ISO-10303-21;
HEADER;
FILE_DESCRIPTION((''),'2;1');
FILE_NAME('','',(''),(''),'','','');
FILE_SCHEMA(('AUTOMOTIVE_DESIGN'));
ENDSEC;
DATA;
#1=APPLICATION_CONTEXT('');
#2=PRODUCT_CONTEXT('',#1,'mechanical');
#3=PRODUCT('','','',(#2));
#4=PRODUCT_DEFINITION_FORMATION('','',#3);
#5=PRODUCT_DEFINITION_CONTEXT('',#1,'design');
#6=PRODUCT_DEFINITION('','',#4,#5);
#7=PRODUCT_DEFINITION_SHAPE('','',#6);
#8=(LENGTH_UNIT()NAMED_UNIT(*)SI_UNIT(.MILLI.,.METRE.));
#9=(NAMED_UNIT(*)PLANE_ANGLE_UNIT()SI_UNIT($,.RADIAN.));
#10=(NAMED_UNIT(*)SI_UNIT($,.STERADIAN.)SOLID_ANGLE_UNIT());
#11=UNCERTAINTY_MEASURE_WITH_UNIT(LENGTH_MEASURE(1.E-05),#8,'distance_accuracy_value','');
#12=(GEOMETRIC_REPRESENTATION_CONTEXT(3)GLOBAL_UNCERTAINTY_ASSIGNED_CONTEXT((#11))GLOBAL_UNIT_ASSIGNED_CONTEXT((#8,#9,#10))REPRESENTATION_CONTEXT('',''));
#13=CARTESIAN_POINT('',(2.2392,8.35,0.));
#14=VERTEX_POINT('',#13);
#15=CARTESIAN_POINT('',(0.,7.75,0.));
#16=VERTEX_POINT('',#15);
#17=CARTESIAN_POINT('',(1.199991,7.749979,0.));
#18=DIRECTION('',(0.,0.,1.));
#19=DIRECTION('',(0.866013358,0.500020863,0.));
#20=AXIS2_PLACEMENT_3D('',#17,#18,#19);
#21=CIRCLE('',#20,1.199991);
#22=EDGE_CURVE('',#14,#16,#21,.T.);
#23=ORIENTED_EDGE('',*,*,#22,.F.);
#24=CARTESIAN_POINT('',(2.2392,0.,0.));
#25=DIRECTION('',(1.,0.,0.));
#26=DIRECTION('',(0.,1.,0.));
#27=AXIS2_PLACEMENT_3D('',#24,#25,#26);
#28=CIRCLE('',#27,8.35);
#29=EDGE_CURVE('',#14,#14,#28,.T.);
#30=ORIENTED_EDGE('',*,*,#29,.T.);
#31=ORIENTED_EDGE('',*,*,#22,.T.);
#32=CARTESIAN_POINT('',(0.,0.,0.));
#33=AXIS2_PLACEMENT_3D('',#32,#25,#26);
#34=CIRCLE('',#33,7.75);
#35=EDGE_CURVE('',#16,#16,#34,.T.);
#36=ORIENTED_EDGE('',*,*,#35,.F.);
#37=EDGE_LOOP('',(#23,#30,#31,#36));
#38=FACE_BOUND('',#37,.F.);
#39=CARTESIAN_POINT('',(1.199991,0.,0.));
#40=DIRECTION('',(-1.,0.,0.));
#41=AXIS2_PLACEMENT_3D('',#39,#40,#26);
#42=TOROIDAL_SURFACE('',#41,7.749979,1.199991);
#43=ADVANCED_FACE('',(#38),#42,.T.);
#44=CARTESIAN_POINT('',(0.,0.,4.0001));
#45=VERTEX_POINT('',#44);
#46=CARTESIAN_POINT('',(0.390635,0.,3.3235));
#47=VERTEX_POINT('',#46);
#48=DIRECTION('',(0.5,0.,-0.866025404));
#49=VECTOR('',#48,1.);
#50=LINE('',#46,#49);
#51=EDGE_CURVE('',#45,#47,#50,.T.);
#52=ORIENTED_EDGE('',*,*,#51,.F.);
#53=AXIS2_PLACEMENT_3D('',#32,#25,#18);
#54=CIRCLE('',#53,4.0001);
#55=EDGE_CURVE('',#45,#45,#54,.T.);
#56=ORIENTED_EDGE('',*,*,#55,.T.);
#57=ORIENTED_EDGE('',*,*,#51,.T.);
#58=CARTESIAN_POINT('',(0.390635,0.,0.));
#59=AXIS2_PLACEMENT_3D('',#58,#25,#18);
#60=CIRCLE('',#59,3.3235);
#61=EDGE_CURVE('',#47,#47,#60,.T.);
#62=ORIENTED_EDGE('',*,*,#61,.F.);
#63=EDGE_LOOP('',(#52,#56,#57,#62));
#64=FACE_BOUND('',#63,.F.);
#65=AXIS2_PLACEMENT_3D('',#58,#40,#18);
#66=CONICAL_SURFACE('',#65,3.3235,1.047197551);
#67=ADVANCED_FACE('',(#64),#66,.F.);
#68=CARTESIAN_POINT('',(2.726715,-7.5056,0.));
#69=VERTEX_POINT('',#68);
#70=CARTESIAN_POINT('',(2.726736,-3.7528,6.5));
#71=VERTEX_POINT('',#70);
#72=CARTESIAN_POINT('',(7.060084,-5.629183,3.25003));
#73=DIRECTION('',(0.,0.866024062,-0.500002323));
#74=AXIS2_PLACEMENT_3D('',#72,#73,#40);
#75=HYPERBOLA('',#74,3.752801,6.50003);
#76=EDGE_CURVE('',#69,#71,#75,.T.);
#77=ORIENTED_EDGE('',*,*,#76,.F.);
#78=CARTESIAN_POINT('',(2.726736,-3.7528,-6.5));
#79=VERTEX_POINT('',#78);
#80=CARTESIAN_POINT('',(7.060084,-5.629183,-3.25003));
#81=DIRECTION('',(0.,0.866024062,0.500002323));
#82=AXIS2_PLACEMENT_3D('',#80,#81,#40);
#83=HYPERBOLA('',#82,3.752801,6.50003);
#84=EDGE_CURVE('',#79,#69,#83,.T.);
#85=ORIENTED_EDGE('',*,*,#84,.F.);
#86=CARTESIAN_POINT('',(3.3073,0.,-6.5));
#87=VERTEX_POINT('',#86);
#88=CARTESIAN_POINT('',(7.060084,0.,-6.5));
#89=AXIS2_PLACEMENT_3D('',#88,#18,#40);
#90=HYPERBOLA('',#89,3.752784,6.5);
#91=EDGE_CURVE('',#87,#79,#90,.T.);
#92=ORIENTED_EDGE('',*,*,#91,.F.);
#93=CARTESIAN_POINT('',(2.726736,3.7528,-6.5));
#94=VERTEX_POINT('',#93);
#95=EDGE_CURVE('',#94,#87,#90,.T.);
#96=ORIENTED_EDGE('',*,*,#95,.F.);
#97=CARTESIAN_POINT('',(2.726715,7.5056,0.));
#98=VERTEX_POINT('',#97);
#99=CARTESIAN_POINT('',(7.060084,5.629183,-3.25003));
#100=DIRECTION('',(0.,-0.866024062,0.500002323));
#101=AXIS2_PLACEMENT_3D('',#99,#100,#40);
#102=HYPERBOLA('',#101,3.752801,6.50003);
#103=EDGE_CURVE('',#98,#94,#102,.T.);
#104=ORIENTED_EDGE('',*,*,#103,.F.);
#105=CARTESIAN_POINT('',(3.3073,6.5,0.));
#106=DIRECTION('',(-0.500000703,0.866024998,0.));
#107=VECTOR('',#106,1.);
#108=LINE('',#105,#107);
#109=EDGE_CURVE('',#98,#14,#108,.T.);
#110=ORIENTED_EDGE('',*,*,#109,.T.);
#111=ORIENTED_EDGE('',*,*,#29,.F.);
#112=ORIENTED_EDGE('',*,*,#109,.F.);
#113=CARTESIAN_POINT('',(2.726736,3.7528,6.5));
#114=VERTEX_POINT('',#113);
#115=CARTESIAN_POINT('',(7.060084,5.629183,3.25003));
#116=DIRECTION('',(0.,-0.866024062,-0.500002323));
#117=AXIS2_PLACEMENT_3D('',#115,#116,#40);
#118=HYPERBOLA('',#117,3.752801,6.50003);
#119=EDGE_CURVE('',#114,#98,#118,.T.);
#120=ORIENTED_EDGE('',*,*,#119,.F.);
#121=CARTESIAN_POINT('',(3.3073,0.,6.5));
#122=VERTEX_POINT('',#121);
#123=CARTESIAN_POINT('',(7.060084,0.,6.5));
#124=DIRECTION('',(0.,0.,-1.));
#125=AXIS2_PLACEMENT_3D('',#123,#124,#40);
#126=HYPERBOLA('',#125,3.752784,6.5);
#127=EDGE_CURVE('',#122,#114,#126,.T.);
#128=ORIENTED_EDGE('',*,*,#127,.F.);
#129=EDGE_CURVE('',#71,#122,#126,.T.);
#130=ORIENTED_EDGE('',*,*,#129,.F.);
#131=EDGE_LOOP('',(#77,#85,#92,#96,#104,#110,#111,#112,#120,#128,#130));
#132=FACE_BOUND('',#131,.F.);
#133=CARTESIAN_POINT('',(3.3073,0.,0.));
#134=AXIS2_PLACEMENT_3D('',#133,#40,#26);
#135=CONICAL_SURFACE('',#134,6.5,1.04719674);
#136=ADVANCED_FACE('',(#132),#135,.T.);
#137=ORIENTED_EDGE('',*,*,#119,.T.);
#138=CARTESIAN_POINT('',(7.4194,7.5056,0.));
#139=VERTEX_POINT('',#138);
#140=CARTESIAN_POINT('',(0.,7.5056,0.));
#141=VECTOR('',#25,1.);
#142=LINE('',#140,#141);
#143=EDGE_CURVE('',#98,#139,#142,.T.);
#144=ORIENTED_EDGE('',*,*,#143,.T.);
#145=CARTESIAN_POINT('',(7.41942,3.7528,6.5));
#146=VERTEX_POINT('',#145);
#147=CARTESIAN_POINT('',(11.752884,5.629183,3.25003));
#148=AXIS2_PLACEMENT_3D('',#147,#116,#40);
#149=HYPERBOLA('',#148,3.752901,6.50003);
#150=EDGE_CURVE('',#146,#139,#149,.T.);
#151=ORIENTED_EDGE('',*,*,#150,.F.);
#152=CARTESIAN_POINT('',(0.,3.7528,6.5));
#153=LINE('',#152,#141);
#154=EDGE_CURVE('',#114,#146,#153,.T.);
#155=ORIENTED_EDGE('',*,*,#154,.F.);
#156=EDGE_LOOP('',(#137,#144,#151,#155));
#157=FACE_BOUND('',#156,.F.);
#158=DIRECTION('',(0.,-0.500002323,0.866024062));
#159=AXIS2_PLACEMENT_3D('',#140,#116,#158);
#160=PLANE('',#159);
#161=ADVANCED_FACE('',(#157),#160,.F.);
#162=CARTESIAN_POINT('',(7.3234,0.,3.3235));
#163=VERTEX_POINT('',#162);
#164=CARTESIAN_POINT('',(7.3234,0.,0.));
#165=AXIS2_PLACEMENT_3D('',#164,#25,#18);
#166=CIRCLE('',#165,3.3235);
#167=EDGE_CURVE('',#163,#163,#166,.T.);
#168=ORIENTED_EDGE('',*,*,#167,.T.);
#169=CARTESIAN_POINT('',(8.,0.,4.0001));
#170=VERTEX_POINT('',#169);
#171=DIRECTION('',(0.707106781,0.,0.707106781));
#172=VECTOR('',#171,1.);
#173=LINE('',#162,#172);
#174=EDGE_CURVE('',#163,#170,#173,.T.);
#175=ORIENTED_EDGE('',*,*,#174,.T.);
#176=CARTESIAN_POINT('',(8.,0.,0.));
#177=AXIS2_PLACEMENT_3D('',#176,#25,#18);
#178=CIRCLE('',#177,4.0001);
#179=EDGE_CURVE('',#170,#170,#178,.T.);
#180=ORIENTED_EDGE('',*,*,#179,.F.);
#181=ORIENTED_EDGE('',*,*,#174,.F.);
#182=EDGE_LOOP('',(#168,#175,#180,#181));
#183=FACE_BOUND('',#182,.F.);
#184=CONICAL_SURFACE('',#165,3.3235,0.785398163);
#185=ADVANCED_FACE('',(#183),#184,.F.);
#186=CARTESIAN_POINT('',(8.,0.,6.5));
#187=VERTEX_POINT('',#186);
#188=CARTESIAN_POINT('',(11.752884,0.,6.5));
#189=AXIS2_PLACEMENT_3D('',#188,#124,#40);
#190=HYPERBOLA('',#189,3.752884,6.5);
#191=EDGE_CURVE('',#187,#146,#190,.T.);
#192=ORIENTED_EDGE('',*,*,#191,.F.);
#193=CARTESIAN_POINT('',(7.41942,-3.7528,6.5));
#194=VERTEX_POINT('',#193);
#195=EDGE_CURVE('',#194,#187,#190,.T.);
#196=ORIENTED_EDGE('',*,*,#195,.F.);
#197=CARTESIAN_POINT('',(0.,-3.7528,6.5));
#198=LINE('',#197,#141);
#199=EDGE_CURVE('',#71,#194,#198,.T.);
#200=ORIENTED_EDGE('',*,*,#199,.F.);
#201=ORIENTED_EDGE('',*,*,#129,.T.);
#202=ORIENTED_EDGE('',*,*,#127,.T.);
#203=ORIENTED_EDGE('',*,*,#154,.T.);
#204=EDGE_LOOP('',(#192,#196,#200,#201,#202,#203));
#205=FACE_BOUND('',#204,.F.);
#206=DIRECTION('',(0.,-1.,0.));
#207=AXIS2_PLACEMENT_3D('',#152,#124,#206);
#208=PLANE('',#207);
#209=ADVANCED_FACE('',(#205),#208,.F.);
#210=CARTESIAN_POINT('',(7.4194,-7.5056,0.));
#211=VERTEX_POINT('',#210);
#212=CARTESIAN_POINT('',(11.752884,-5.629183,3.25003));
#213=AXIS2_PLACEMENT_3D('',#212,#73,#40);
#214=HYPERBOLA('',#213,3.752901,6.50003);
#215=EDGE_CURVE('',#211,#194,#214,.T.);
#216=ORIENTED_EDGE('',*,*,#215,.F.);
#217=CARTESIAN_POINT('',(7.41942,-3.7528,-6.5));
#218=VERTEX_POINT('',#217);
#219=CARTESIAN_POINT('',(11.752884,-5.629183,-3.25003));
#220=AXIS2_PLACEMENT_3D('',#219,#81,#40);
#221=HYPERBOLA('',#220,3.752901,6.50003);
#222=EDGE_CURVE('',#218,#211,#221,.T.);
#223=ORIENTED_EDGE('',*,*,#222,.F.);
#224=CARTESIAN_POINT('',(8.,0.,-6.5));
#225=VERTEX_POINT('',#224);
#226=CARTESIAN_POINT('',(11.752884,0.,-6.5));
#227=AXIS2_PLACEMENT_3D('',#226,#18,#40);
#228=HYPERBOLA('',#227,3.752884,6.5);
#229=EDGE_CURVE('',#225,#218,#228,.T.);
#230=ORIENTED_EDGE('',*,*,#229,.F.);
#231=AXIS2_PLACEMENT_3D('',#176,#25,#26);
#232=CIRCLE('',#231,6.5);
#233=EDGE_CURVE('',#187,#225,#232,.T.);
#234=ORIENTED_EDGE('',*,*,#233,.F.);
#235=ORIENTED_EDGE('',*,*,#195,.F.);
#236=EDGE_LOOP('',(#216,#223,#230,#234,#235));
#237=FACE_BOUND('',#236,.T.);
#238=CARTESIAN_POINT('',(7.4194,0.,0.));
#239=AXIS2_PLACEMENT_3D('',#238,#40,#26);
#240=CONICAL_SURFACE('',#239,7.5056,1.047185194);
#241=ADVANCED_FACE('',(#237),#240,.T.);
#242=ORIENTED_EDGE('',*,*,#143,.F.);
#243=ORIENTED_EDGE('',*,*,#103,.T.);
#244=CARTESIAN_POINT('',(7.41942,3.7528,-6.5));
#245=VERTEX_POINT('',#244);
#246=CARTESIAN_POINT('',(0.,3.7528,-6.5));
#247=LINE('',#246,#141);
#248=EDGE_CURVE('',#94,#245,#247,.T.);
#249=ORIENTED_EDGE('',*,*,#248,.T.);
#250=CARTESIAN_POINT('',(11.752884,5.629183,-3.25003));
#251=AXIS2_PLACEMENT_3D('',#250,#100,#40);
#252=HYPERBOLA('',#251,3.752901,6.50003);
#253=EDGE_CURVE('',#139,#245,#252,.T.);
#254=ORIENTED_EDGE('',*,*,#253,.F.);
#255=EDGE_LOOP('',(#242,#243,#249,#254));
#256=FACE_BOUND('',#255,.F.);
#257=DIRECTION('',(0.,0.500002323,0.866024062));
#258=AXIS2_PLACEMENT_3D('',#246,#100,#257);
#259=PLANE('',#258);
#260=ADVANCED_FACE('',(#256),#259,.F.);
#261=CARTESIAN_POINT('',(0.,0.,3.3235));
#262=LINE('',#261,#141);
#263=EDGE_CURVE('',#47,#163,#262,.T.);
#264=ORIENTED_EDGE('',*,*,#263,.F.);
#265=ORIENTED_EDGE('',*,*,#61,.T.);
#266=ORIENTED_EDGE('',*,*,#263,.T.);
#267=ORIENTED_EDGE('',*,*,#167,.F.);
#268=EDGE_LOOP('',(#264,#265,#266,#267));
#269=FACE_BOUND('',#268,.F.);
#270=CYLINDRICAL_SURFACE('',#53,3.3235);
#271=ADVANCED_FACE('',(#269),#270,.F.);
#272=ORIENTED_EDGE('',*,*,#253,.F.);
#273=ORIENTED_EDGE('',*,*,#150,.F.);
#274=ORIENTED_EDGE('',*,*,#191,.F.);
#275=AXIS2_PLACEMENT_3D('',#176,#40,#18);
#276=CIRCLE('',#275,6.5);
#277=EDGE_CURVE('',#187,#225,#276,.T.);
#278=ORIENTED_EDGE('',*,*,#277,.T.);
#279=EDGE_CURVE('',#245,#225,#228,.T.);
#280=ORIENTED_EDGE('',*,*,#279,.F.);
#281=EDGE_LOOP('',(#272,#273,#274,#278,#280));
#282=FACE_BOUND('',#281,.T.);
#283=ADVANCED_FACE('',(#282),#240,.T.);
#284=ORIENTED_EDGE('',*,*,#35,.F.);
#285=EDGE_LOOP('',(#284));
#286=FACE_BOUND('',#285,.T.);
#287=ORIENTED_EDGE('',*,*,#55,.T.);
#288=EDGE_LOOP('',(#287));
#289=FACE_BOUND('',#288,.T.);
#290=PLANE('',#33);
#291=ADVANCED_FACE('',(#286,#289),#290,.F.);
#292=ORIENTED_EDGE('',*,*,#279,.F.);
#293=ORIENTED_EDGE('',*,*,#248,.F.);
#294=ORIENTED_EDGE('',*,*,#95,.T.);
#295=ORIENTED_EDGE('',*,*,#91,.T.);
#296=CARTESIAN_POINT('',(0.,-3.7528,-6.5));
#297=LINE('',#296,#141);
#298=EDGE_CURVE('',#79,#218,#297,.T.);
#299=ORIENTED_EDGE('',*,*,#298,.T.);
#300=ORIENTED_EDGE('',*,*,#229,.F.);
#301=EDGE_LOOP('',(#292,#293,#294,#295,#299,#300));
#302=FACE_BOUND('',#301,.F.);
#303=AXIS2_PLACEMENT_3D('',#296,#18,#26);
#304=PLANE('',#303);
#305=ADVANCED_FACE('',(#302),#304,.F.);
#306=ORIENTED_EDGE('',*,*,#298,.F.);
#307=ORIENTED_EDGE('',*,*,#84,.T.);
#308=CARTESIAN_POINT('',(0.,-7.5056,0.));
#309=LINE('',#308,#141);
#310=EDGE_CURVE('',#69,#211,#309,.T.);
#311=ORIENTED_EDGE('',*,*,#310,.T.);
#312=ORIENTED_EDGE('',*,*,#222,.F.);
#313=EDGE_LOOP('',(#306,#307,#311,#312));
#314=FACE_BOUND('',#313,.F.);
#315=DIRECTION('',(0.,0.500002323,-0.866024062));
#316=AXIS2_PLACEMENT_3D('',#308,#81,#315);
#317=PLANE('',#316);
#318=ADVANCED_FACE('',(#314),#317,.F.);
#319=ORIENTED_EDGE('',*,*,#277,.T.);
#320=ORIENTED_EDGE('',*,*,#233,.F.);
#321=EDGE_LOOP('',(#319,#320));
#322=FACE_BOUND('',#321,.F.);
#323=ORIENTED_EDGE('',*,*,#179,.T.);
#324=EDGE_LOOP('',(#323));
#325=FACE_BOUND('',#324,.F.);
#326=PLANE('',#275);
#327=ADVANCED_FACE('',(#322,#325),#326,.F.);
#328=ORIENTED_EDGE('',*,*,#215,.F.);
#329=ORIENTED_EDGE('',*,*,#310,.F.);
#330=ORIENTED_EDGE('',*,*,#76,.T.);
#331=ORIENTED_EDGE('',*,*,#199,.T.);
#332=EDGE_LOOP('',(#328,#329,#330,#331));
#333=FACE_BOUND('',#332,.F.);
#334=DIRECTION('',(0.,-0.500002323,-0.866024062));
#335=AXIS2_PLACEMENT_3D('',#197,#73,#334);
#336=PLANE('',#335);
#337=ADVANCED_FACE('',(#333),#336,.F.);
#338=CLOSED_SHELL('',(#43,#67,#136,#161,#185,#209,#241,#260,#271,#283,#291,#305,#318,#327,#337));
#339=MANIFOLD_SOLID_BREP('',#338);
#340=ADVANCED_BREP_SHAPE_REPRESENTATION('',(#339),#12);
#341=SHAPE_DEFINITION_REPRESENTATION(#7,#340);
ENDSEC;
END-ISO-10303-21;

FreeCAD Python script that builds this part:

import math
import FreeCAD as App
import Part
import Sketcher

V = App.Vector
Q = App.Units.Quantity


def edges_at(feature, points):
    """Names of the edges that pass closest to the given points."""
    edges = feature.Shape.Edges
    near = lambda p: min(range(len(edges)), key=lambda i: edges[i].distToShape(Part.Vertex(*p))[0])
    return sorted({f"Edge{near(p) + 1}" for p in points})

doc = App.newDocument("Part")
params = doc.addObject("Spreadsheet::Sheet", "Params")
for row, (alias, value) in enumerate([
    ("sketch1_radius", "1.2 mm"),
    ("sketch1_height", "6.5 mm"),
    ("sketch1_height2", "7.75 mm"),
    ("revolution_angle", "360 deg"),
    ("pad1_length", "8 mm"),
    ("groove_angle", "360 deg"),
    ("hole_diameter", "6.647 mm"),
    ("chamfer_size", "0.6766 mm"),
    ("chamfer2_size", "0.6766 mm"),
], start=1):
    params.set(f"A{row}", alias)
    params.set(f"B{row}", "=" + value)
    params.setAlias(f"B{row}", alias)

body = doc.addObject("PartDesign::Body", "Body")

# Sketch on XY plane
sketch1 = body.newObject("Sketcher::SketchObject", "Sketch")
sketch1.AttachmentSupport = (doc.getObject("XY_Plane"), [""])
sketch1.MapMode = "FlatFace"
sketch1.addGeometry([
    Part.LineSegment(V(0, 7.8, 0), V(0, 0, 0)),  # 0
    Part.LineSegment(V(0, 0, 0), V(3.3, 0, 0)),  # 1
    Part.LineSegment(V(3.3, 0, 0), V(3.3, 6.5, 0)),  # 2
    Part.LineSegment(V(3.3, 6.5, 0), V(2.2, 8.3, 0)),  # 3
    Part.ArcOfCircle(Part.Circle(V(1.2, 7.8, 0), V(0, 0, 1), 1.2), math.radians(30), math.radians(180)),  # 4
], False)
sketch1.addConstraint([
    Sketcher.Constraint("Coincident", 0, 2, 1, 1),
    Sketcher.Constraint("Coincident", 1, 2, 2, 1),
    Sketcher.Constraint("Coincident", 2, 2, 3, 1),
    Sketcher.Constraint("Tangent", 3, 2, 4, 1),
    Sketcher.Constraint("Tangent", 4, 2, 0, 1),
    Sketcher.Constraint("Vertical", 0),
    Sketcher.Constraint("Horizontal", 1),
    Sketcher.Constraint("Vertical", 2),
    Sketcher.Constraint("Coincident", 0, 2, -1, 1),
    Sketcher.Constraint("Radius", 4, 1.2),
    Sketcher.Constraint("Angle", 3, Q("120 deg")),
    Sketcher.Constraint("DistanceY", 2, 1, 2, 2, 6.5),
    Sketcher.Constraint("DistanceY", 0, 2, 0, 1, 7.75),
])
sketch1.setExpression("Constraints[9]", "Params.sketch1_radius")
sketch1.setExpression("Constraints[11]", "Params.sketch1_height")
sketch1.setExpression("Constraints[12]", "Params.sketch1_height2")
revolution = body.newObject("PartDesign::Revolution", "Revolution")
revolution.Profile = sketch1
revolution.ReferenceAxis = (sketch1, ["H_Axis"])
revolution.setExpression("Angle", "Params.revolution_angle")

# Sketch on YZ plane
sketch2 = body.newObject("Sketcher::SketchObject", "Sketch001")
sketch2.AttachmentSupport = (doc.getObject("YZ_Plane"), [""])
sketch2.MapMode = "FlatFace"
sketch2.addGeometry([
    Part.LineSegment(V(4, -6, 0), V(-4, -6, 0)),  # 0
    Part.LineSegment(V(-4, -6, 0), V(-8, 0, 0)),  # 1
    Part.LineSegment(V(-8, 0, 0), V(-4, 6, 0)),  # 2
    Part.LineSegment(V(-4, 6, 0), V(4, 6, 0)),  # 3
    Part.LineSegment(V(4, 6, 0), V(8, 0, 0)),  # 4
    Part.LineSegment(V(8, 0, 0), V(4, -6, 0)),  # 5
], False)
sketch2.addConstraint([
    Sketcher.Constraint("Coincident", 0, 2, 1, 1),
    Sketcher.Constraint("Coincident", 1, 2, 2, 1),
    Sketcher.Constraint("Coincident", 2, 2, 3, 1),
    Sketcher.Constraint("Coincident", 3, 2, 4, 1),
    Sketcher.Constraint("Coincident", 4, 2, 5, 1),
    Sketcher.Constraint("Coincident", 5, 2, 0, 1),
    Sketcher.Constraint("Horizontal", 0),
    Sketcher.Constraint("Horizontal", 3),
    Sketcher.Constraint("Symmetric", 0, 2, 3, 2, -1, 1),
    Sketcher.Constraint("Symmetric", 1, 2, 4, 2, -1, 1),
    Sketcher.Constraint("PointOnObject", 1, 2, -1),
    Sketcher.Constraint("Parallel", 2, 5),
    Sketcher.Constraint("Vertical", 0, 2, 2, 2),
    Sketcher.Constraint("Angle", 1, Q("120.0002 deg")),
    Sketcher.Constraint("DistanceY", 0, 2, 2, 2, 13.0),
    Sketcher.Constraint("DistanceX", 1, 2, 4, 2, 15.0112),
])
pad1 = body.newObject("PartDesign::Pad", "Pad")
pad1.Profile = sketch2
pad1.setExpression("Length", "Params.pad1_length")

# Sketch on XY plane
sketch3 = body.newObject("Sketcher::SketchObject", "Sketch002")
sketch3.AttachmentSupport = (doc.getObject("XY_Plane"), [""])
sketch3.MapMode = "FlatFace"
sketch3.addGeometry([
    Part.LineSegment(V(8, 7.5, 0), V(7.4, 7.5, 0)),
    Part.LineSegment(V(7.4, 7.5, 0), V(8, 6.5, 0)),
    Part.LineSegment(V(8, 6.5, 0), V(8, 7.5, 0)),
], False)
sketch3.addConstraint([
    Sketcher.Constraint("Coincident", 0, 2, 1, 1),
    Sketcher.Constraint("Coincident", 1, 2, 2, 1),
    Sketcher.Constraint("Coincident", 2, 2, 0, 1),
    Sketcher.Constraint("Horizontal", 0),
    Sketcher.Constraint("Vertical", 2),
    Sketcher.Constraint("Angle", 1, Q("-59.9993 deg")),
    Sketcher.Constraint("DistanceX", -1, 1, 1, 2, 8.0),
    Sketcher.Constraint("DistanceY", -1, 1, 1, 2, 6.5),
    Sketcher.Constraint("DistanceX", 0, 2, 0, 1, 0.5806),
])
groove = body.newObject("PartDesign::Groove", "Groove")
groove.Profile = sketch3
groove.ReferenceAxis = (sketch3, ["H_Axis"])
groove.setExpression("Angle", "Params.groove_angle")

# Sketch on YZ plane
sketch4 = body.newObject("Sketcher::SketchObject", "Sketch003")
sketch4.AttachmentSupport = (doc.getObject("YZ_Plane"), [""])
sketch4.MapMode = "FlatFace"
sketch4.addGeometry(Part.Circle(V(0, 0, 0), V(0, 0, 1), 3.3), False)
sketch4.addConstraint([
    Sketcher.Constraint("Coincident", 0, 3, -1, 1),
    Sketcher.Constraint("Diameter", 0, 6.647),
])
doc.recompute()
hole = body.newObject("PartDesign::Hole", "Hole")
hole.Profile = sketch4
hole.ThreadType = "None"
hole.setExpression("Diameter", "Params.hole_diameter")
hole.DepthType = "ThroughAll"
hole.Reversed = True
doc.recompute()

chamfer = body.newObject("PartDesign::Chamfer", "Chamfer")
chamfer.Base = (hole, edges_at(hole, [(0, 0, -3.324)]))
chamfer.ChamferType = "Distance and Angle"
chamfer.setExpression("Size", "Params.chamfer_size")
chamfer.Angle = 30
doc.recompute()

chamfer2 = body.newObject("PartDesign::Chamfer", "Chamfer001")
chamfer2.Base = (chamfer, edges_at(chamfer, [(8, 0, -3.324)]))
chamfer2.setExpression("Size", "Params.chamfer2_size")

doc.recompute()
